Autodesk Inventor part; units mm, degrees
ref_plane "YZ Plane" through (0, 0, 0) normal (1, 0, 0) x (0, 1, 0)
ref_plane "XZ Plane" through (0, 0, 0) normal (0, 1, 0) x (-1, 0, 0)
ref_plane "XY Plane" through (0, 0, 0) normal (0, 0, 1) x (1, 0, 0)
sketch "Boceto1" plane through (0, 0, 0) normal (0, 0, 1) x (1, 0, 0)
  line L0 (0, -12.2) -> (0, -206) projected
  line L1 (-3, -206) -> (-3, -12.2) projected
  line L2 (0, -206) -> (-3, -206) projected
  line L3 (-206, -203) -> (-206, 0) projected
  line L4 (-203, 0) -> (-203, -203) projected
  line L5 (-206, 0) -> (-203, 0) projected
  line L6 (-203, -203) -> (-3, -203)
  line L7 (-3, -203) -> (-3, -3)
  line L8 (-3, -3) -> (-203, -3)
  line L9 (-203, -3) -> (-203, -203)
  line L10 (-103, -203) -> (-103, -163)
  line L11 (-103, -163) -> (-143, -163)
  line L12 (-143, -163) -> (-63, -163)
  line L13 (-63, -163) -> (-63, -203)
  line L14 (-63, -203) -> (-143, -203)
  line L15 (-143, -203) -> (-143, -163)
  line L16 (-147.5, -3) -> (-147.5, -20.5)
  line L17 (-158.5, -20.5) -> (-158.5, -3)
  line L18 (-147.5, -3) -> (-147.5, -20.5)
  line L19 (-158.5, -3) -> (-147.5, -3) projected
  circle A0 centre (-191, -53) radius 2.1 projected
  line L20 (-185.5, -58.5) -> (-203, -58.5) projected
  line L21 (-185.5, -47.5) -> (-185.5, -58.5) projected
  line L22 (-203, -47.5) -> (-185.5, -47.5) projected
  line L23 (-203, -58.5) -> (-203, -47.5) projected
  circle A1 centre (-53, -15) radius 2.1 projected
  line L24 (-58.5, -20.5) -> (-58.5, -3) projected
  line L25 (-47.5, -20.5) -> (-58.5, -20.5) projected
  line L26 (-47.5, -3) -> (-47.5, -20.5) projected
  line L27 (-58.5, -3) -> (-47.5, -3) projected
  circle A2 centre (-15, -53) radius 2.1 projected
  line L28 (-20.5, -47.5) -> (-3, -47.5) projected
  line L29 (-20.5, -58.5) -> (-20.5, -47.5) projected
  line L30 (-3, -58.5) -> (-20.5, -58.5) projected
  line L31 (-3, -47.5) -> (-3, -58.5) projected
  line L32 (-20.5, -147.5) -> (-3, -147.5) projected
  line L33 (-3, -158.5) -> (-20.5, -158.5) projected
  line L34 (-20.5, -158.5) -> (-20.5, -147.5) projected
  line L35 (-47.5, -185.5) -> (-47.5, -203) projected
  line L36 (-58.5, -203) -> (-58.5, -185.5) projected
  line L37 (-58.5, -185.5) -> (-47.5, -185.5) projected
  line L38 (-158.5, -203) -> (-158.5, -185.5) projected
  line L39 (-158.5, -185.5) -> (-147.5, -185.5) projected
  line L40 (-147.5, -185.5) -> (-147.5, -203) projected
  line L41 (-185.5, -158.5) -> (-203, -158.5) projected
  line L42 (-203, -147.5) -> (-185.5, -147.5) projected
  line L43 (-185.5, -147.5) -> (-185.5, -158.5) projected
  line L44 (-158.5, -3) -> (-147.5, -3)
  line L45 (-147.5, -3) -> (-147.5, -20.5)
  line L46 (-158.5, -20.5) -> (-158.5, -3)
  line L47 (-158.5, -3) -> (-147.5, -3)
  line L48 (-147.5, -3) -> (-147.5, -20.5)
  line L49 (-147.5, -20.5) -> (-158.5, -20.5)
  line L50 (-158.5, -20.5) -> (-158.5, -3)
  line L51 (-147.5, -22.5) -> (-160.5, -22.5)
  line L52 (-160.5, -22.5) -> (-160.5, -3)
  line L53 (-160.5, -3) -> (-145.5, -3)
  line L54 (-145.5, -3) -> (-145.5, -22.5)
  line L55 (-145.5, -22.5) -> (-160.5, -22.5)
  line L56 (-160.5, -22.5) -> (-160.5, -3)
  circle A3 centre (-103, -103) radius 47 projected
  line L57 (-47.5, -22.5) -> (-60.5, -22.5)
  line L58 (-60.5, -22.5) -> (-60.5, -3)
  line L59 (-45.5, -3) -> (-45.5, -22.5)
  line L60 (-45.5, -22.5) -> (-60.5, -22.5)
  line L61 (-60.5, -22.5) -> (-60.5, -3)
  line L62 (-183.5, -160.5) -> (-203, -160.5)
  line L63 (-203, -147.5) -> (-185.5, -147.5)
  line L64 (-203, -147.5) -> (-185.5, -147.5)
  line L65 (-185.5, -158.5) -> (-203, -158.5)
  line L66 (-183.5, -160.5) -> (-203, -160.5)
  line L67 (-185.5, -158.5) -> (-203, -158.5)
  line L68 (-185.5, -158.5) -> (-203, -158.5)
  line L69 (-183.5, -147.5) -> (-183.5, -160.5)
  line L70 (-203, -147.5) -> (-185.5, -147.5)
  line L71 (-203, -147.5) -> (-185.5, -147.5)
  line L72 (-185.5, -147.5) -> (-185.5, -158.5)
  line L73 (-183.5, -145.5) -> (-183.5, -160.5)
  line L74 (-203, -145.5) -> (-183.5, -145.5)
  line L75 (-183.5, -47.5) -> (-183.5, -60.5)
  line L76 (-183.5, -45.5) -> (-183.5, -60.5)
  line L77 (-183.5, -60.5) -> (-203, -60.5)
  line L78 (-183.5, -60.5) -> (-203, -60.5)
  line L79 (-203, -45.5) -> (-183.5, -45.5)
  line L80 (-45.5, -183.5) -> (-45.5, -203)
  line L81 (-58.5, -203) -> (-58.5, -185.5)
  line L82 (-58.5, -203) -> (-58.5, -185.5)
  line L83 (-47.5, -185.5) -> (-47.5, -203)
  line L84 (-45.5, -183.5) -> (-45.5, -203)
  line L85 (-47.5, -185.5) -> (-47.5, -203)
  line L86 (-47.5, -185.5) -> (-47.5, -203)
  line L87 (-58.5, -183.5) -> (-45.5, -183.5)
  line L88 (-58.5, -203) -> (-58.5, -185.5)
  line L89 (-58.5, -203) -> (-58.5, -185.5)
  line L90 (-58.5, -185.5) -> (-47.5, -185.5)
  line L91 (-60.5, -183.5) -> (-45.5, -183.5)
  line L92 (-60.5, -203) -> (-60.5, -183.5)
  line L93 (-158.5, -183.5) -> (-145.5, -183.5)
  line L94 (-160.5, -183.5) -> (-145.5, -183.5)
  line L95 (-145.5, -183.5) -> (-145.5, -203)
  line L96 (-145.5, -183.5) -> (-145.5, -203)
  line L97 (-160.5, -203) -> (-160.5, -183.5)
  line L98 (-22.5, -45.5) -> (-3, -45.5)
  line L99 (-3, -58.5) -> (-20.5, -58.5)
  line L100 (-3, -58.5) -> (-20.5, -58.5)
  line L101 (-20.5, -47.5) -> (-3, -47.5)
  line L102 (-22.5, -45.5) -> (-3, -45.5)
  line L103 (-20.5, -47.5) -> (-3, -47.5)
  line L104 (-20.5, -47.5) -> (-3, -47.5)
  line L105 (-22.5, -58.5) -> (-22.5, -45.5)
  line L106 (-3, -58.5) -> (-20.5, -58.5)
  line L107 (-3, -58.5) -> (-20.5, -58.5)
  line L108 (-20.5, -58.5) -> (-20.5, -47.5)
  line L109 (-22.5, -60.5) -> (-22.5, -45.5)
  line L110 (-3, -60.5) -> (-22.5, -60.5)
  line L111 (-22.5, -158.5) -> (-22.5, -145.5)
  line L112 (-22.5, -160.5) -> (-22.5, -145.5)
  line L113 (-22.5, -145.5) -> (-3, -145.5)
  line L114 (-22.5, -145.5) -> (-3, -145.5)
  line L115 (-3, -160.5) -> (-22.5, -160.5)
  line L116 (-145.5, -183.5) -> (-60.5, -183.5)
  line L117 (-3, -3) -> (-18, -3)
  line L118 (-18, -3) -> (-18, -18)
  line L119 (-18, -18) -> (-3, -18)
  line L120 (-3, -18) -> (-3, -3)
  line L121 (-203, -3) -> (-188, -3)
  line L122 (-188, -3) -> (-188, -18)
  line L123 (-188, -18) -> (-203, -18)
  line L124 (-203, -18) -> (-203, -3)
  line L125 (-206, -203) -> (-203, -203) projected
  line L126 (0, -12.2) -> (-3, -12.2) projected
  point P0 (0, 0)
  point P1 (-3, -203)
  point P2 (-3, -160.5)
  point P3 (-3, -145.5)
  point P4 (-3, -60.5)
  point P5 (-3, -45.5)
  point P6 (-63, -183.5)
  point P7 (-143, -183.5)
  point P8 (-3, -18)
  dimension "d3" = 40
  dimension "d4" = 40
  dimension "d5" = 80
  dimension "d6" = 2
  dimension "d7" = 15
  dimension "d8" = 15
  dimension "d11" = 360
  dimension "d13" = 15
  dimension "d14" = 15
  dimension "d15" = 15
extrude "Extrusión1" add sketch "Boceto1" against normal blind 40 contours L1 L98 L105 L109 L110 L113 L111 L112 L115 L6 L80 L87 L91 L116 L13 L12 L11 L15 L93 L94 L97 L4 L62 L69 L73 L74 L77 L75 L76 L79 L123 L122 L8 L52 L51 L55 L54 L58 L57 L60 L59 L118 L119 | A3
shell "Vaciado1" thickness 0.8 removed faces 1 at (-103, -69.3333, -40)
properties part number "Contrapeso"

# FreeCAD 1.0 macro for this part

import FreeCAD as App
import Part
import Sketcher
Q = App.Units.Quantity


def faces_at(feature, points):
    """Names of the faces that lie closest to the given points."""
    faces = feature.Shape.Faces
    near = lambda p: min(range(len(faces)), key=lambda i: faces[i].distToShape(Part.Vertex(*p))[0])
    return sorted({f"Face{near(p) + 1}" for p in points})

doc = App.newDocument("Part")
body = doc.addObject("PartDesign::Body", "Body")

# Sketch on XY plane
sketch1 = body.newObject("Sketcher::SketchObject", "Sketch")
sketch1.AttachmentSupport = (doc.getObject("XY_Plane"), [""])
sketch1.MapMode = "FlatFace"
sketch1.addGeometry([
    Part.LineSegment(App.Vector(-3, -46, 0), App.Vector(-3, -18, 0)),  # 0
    Part.LineSegment(App.Vector(-3, -18, 0), App.Vector(-18, -18, 0)),  # 1
    Part.LineSegment(App.Vector(-18, -18, 0), App.Vector(-18, -3, 0)),  # 2
    Part.LineSegment(App.Vector(-18, -3, 0), App.Vector(-46, -3, 0)),  # 3
    Part.LineSegment(App.Vector(-46, -3, 0), App.Vector(-46, -22, 0)),  # 4
    Part.LineSegment(App.Vector(-46, -22, 0), App.Vector(-60, -22, 0)),  # 5
    Part.LineSegment(App.Vector(-60, -22, 0), App.Vector(-60, -3, 0)),  # 6
    Part.LineSegment(App.Vector(-60, -3, 0), App.Vector(-146, -3, 0)),  # 7
    Part.LineSegment(App.Vector(-146, -3, 0), App.Vector(-146, -22, 0)),  # 8
    Part.LineSegment(App.Vector(-146, -22, 0), App.Vector(-160, -22, 0)),  # 9
    Part.LineSegment(App.Vector(-160, -22, 0), App.Vector(-160, -3, 0)),  # 10
    Part.LineSegment(App.Vector(-160, -3, 0), App.Vector(-188, -3, 0)),  # 11
    Part.LineSegment(App.Vector(-188, -3, 0), App.Vector(-188, -18, 0)),  # 12
    Part.LineSegment(App.Vector(-188, -18, 0), App.Vector(-203, -18, 0)),  # 13
    Part.LineSegment(App.Vector(-203, -18, 0), App.Vector(-203, -46, 0)),  # 14
    Part.LineSegment(App.Vector(-203, -46, 0), App.Vector(-184, -46, 0)),  # 15
    Part.LineSegment(App.Vector(-184, -46, 0), App.Vector(-184, -60, 0)),  # 16
    Part.LineSegment(App.Vector(-184, -60, 0), App.Vector(-203, -60, 0)),  # 17
    Part.LineSegment(App.Vector(-203, -60, 0), App.Vector(-203, -146, 0)),  # 18
    Part.LineSegment(App.Vector(-203, -146, 0), App.Vector(-184, -146, 0)),  # 19
    Part.LineSegment(App.Vector(-184, -146, 0), App.Vector(-184, -160, 0)),  # 20
    Part.LineSegment(App.Vector(-184, -160, 0), App.Vector(-203, -160, 0)),  # 21
    Part.LineSegment(App.Vector(-203, -160, 0), App.Vector(-203, -203, 0)),  # 22
    Part.LineSegment(App.Vector(-203, -203, 0), App.Vector(-160, -203, 0)),  # 23
    Part.LineSegment(App.Vector(-160, -203, 0), App.Vector(-160, -184, 0)),  # 24
    Part.LineSegment(App.Vector(-160, -184, 0), App.Vector(-143, -184, 0)),  # 25
    Part.LineSegment(App.Vector(-143, -184, 0), App.Vector(-143, -163, 0)),  # 26
    Part.LineSegment(App.Vector(-143, -163, 0), App.Vector(-63, -163, 0)),  # 27
    Part.LineSegment(App.Vector(-63, -163, 0), App.Vector(-63, -184, 0)),  # 28
    Part.LineSegment(App.Vector(-63, -184, 0), App.Vector(-46, -184, 0)),  # 29
    Part.LineSegment(App.Vector(-46, -184, 0), App.Vector(-46, -203, 0)),  # 30
    Part.LineSegment(App.Vector(-46, -203, 0), App.Vector(-3, -203, 0)),  # 31
    Part.LineSegment(App.Vector(-3, -203, 0), App.Vector(-3, -160, 0)),  # 32
    Part.LineSegment(App.Vector(-3, -160, 0), App.Vector(-22, -160, 0)),  # 33
    Part.LineSegment(App.Vector(-22, -160, 0), App.Vector(-22, -146, 0)),  # 34
    Part.LineSegment(App.Vector(-22, -146, 0), App.Vector(-3, -146, 0)),  # 35
    Part.LineSegment(App.Vector(-3, -146, 0), App.Vector(-3, -60, 0)),  # 36
    Part.LineSegment(App.Vector(-3, -60, 0), App.Vector(-22, -60, 0)),  # 37
    Part.LineSegment(App.Vector(-22, -60, 0), App.Vector(-22, -46, 0)),  # 38
    Part.LineSegment(App.Vector(-22, -46, 0), App.Vector(-3, -46, 0)),  # 39
], False)
sketch1.addConstraint([
    Sketcher.Constraint("Coincident", 0, 2, 1, 1),
    Sketcher.Constraint("Coincident", 1, 2, 2, 1),
    Sketcher.Constraint("Coincident", 2, 2, 3, 1),
    Sketcher.Constraint("Coincident", 3, 2, 4, 1),
    Sketcher.Constraint("Coincident", 4, 2, 5, 1),
    Sketcher.Constraint("Coincident", 5, 2, 6, 1),
    Sketcher.Constraint("Coincident", 6, 2, 7, 1),
    Sketcher.Constraint("Coincident", 7, 2, 8, 1),
    Sketcher.Constraint("Coincident", 8, 2, 9, 1),
    Sketcher.Constraint("Coincident", 9, 2, 10, 1),
    Sketcher.Constraint("Coincident", 10, 2, 11, 1),
    Sketcher.Constraint("Coincident", 11, 2, 12, 1),
    Sketcher.Constraint("Coincident", 12, 2, 13, 1),
    Sketcher.Constraint("Coincident", 13, 2, 14, 1),
    Sketcher.Constraint("Coincident", 14, 2, 15, 1),
    Sketcher.Constraint("Coincident", 15, 2, 16, 1),
    Sketcher.Constraint("Coincident", 16, 2, 17, 1),
    Sketcher.Constraint("Coincident", 17, 2, 18, 1),
    Sketcher.Constraint("Coincident", 18, 2, 19, 1),
    Sketcher.Constraint("Coincident", 19, 2, 20, 1),
    Sketcher.Constraint("Coincident", 20, 2, 21, 1),
    Sketcher.Constraint("Coincident", 21, 2, 22, 1),
    Sketcher.Constraint("Coincident", 22, 2, 23, 1),
    Sketcher.Constraint("Coincident", 23, 2, 24, 1),
    Sketcher.Constraint("Coincident", 24, 2, 25, 1),
    Sketcher.Constraint("Coincident", 25, 2, 26, 1),
    Sketcher.Constraint("Coincident", 26, 2, 27, 1),
    Sketcher.Constraint("Coincident", 27, 2, 28, 1),
    Sketcher.Constraint("Coincident", 28, 2, 29, 1),
    Sketcher.Constraint("Coincident", 29, 2, 30, 1),
    Sketcher.Constraint("Coincident", 30, 2, 31, 1),
    Sketcher.Constraint("Coincident", 31, 2, 32, 1),
    Sketcher.Constraint("Coincident", 32, 2, 33, 1),
    Sketcher.Constraint("Coincident", 33, 2, 34, 1),
    Sketcher.Constraint("Coincident", 34, 2, 35, 1),
    Sketcher.Constraint("Coincident", 35, 2, 36, 1),
    Sketcher.Constraint("Coincident", 36, 2, 37, 1),
    Sketcher.Constraint("Coincident", 37, 2, 38, 1),
    Sketcher.Constraint("Coincident", 38, 2, 39, 1),
    Sketcher.Constraint("Coincident", 39, 2, 0, 1),
    Sketcher.Constraint("Vertical", 0),
    Sketcher.Constraint("Horizontal", 1),
    Sketcher.Constraint("Vertical", 2),
    Sketcher.Constraint("Horizontal", 3),
    Sketcher.Constraint("Vertical", 4),
    Sketcher.Constraint("Horizontal", 5),
    Sketcher.Constraint("Vertical", 6),
    Sketcher.Constraint("Horizontal", 7),
    Sketcher.Constraint("Vertical", 8),
    Sketcher.Constraint("Horizontal", 9),
    Sketcher.Constraint("Vertical", 10),
    Sketcher.Constraint("Horizontal", 11),
    Sketcher.Constraint("Vertical", 12),
    Sketcher.Constraint("Horizontal", 13),
    Sketcher.Constraint("Vertical", 14),
    Sketcher.Constraint("Horizontal", 15),
    Sketcher.Constraint("Vertical", 16),
    Sketcher.Constraint("Horizontal", 17),
    Sketcher.Constraint("Vertical", 18),
    Sketcher.Constraint("Horizontal", 19),
    Sketcher.Constraint("Vertical", 20),
    Sketcher.Constraint("Horizontal", 21),
    Sketcher.Constraint("Vertical", 22),
    Sketcher.Constraint("Horizontal", 23),
    Sketcher.Constraint("Vertical", 24),
    Sketcher.Constraint("Horizontal", 25),
    Sketcher.Constraint("Vertical", 26),
    Sketcher.Constraint("Horizontal", 27),
    Sketcher.Constraint("Vertical", 28),
    Sketcher.Constraint("Horizontal", 29),
    Sketcher.Constraint("Vertical", 30),
    Sketcher.Constraint("Horizontal", 31),
    Sketcher.Constraint("Vertical", 32),
    Sketcher.Constraint("Horizontal", 33),
    Sketcher.Constraint("Vertical", 34),
    Sketcher.Constraint("Horizontal", 35),
    Sketcher.Constraint("Vertical", 36),
    Sketcher.Constraint("Horizontal", 37),
    Sketcher.Constraint("Vertical", 38),
    Sketcher.Constraint("Horizontal", 39),
    Sketcher.Constraint("Horizontal", 3, 2, 6, 2),
    Sketcher.Constraint("Horizontal", 5, 2, 8, 2),
    Sketcher.Constraint("Horizontal", 7, 2, 10, 2),
    Sketcher.Constraint("Horizontal", 1, 2, 12, 2),
    Sketcher.Constraint("Horizontal", 25, 2, 28, 2),
    Sketcher.Constraint("Horizontal", 23, 2, 30, 2),
    Sketcher.Constraint("Horizontal", 21, 2, 32, 2),
    Sketcher.Constraint("Horizontal", 19, 2, 34, 2),
    Sketcher.Constraint("Horizontal", 17, 2, 36, 2),
    Sketcher.Constraint("Horizontal", 15, 2, 38, 2),
    Sketcher.Constraint("Vertical", 14, 2, 17, 2),
    Sketcher.Constraint("Vertical", 16, 2, 19, 2),
    Sketcher.Constraint("Vertical", 18, 2, 21, 2),
    Sketcher.Constraint("Vertical", 10, 2, 23, 2),
    Sketcher.Constraint("Vertical", 4, 2, 29, 2),
    Sketcher.Constraint("Vertical", 0, 2, 31, 2),
    Sketcher.Constraint("Vertical", 32, 2, 35, 2),
    Sketcher.Constraint("Vertical", 34, 2, 37, 2),
    Sketcher.Constraint("Equal", 1, 5),
    Sketcher.Constraint("Equal", 5, 9),
    Sketcher.Constraint("Equal", 3, 11),
    Sketcher.Constraint("Equal", 9, 13),
    Sketcher.Constraint("Equal", 25, 29),
    Sketcher.Constraint("Equal", 21, 33),
    Sketcher.Constraint("Equal", 11, 0),
    Sketcher.Constraint("Equal", 13, 2),
    Sketcher.Constraint("Equal", 39, 4),
    Sketcher.Constraint("Equal", 12, 16),
    Sketcher.Constraint("Equal", 7, 18),
    Sketcher.Constraint("Equal", 16, 20),
    Sketcher.Constraint("Equal", 31, 22),
    Sketcher.Constraint("Equal", 10, 24),
    Sketcher.Constraint("DistanceX", 1, 2, 1, 1, Q("15 mm")),
    Sketcher.Constraint("DistanceX", 27, 1, 27, 2, Q("80 mm")),
    Sketcher.Constraint("DistanceY", 23, 2, 26, 2, Q("40 mm")),
    Sketcher.Constraint("DistanceX", 7, 2, 7, 1, Q("85 mm")),
    Sketcher.Constraint("DistanceX", 3, 2, 3, 1, Q("27.5 mm")),
    Sketcher.Constraint("DistanceX", 15, 1, 15, 2, Q("19.5 mm")),
    Sketcher.Constraint("DistanceX", 0, 2, -1, 1, Q("3 mm")),
    Sketcher.Constraint("DistanceY", 0, 2, -1, 1, Q("18 mm")),
])
pad1 = body.newObject("PartDesign::Pad", "Pad")
pad1.Profile = sketch1
pad1.Length = 40
pad1.Reversed = True
doc.recompute()

thickness = body.newObject("PartDesign::Thickness", "Thickness")
thickness.Base = (pad1, faces_at(pad1, [(-103, -69.333, -40)]))
thickness.Value = 0.8
thickness.Reversed = True
thickness.Join = "Intersection"

doc.recompute()
